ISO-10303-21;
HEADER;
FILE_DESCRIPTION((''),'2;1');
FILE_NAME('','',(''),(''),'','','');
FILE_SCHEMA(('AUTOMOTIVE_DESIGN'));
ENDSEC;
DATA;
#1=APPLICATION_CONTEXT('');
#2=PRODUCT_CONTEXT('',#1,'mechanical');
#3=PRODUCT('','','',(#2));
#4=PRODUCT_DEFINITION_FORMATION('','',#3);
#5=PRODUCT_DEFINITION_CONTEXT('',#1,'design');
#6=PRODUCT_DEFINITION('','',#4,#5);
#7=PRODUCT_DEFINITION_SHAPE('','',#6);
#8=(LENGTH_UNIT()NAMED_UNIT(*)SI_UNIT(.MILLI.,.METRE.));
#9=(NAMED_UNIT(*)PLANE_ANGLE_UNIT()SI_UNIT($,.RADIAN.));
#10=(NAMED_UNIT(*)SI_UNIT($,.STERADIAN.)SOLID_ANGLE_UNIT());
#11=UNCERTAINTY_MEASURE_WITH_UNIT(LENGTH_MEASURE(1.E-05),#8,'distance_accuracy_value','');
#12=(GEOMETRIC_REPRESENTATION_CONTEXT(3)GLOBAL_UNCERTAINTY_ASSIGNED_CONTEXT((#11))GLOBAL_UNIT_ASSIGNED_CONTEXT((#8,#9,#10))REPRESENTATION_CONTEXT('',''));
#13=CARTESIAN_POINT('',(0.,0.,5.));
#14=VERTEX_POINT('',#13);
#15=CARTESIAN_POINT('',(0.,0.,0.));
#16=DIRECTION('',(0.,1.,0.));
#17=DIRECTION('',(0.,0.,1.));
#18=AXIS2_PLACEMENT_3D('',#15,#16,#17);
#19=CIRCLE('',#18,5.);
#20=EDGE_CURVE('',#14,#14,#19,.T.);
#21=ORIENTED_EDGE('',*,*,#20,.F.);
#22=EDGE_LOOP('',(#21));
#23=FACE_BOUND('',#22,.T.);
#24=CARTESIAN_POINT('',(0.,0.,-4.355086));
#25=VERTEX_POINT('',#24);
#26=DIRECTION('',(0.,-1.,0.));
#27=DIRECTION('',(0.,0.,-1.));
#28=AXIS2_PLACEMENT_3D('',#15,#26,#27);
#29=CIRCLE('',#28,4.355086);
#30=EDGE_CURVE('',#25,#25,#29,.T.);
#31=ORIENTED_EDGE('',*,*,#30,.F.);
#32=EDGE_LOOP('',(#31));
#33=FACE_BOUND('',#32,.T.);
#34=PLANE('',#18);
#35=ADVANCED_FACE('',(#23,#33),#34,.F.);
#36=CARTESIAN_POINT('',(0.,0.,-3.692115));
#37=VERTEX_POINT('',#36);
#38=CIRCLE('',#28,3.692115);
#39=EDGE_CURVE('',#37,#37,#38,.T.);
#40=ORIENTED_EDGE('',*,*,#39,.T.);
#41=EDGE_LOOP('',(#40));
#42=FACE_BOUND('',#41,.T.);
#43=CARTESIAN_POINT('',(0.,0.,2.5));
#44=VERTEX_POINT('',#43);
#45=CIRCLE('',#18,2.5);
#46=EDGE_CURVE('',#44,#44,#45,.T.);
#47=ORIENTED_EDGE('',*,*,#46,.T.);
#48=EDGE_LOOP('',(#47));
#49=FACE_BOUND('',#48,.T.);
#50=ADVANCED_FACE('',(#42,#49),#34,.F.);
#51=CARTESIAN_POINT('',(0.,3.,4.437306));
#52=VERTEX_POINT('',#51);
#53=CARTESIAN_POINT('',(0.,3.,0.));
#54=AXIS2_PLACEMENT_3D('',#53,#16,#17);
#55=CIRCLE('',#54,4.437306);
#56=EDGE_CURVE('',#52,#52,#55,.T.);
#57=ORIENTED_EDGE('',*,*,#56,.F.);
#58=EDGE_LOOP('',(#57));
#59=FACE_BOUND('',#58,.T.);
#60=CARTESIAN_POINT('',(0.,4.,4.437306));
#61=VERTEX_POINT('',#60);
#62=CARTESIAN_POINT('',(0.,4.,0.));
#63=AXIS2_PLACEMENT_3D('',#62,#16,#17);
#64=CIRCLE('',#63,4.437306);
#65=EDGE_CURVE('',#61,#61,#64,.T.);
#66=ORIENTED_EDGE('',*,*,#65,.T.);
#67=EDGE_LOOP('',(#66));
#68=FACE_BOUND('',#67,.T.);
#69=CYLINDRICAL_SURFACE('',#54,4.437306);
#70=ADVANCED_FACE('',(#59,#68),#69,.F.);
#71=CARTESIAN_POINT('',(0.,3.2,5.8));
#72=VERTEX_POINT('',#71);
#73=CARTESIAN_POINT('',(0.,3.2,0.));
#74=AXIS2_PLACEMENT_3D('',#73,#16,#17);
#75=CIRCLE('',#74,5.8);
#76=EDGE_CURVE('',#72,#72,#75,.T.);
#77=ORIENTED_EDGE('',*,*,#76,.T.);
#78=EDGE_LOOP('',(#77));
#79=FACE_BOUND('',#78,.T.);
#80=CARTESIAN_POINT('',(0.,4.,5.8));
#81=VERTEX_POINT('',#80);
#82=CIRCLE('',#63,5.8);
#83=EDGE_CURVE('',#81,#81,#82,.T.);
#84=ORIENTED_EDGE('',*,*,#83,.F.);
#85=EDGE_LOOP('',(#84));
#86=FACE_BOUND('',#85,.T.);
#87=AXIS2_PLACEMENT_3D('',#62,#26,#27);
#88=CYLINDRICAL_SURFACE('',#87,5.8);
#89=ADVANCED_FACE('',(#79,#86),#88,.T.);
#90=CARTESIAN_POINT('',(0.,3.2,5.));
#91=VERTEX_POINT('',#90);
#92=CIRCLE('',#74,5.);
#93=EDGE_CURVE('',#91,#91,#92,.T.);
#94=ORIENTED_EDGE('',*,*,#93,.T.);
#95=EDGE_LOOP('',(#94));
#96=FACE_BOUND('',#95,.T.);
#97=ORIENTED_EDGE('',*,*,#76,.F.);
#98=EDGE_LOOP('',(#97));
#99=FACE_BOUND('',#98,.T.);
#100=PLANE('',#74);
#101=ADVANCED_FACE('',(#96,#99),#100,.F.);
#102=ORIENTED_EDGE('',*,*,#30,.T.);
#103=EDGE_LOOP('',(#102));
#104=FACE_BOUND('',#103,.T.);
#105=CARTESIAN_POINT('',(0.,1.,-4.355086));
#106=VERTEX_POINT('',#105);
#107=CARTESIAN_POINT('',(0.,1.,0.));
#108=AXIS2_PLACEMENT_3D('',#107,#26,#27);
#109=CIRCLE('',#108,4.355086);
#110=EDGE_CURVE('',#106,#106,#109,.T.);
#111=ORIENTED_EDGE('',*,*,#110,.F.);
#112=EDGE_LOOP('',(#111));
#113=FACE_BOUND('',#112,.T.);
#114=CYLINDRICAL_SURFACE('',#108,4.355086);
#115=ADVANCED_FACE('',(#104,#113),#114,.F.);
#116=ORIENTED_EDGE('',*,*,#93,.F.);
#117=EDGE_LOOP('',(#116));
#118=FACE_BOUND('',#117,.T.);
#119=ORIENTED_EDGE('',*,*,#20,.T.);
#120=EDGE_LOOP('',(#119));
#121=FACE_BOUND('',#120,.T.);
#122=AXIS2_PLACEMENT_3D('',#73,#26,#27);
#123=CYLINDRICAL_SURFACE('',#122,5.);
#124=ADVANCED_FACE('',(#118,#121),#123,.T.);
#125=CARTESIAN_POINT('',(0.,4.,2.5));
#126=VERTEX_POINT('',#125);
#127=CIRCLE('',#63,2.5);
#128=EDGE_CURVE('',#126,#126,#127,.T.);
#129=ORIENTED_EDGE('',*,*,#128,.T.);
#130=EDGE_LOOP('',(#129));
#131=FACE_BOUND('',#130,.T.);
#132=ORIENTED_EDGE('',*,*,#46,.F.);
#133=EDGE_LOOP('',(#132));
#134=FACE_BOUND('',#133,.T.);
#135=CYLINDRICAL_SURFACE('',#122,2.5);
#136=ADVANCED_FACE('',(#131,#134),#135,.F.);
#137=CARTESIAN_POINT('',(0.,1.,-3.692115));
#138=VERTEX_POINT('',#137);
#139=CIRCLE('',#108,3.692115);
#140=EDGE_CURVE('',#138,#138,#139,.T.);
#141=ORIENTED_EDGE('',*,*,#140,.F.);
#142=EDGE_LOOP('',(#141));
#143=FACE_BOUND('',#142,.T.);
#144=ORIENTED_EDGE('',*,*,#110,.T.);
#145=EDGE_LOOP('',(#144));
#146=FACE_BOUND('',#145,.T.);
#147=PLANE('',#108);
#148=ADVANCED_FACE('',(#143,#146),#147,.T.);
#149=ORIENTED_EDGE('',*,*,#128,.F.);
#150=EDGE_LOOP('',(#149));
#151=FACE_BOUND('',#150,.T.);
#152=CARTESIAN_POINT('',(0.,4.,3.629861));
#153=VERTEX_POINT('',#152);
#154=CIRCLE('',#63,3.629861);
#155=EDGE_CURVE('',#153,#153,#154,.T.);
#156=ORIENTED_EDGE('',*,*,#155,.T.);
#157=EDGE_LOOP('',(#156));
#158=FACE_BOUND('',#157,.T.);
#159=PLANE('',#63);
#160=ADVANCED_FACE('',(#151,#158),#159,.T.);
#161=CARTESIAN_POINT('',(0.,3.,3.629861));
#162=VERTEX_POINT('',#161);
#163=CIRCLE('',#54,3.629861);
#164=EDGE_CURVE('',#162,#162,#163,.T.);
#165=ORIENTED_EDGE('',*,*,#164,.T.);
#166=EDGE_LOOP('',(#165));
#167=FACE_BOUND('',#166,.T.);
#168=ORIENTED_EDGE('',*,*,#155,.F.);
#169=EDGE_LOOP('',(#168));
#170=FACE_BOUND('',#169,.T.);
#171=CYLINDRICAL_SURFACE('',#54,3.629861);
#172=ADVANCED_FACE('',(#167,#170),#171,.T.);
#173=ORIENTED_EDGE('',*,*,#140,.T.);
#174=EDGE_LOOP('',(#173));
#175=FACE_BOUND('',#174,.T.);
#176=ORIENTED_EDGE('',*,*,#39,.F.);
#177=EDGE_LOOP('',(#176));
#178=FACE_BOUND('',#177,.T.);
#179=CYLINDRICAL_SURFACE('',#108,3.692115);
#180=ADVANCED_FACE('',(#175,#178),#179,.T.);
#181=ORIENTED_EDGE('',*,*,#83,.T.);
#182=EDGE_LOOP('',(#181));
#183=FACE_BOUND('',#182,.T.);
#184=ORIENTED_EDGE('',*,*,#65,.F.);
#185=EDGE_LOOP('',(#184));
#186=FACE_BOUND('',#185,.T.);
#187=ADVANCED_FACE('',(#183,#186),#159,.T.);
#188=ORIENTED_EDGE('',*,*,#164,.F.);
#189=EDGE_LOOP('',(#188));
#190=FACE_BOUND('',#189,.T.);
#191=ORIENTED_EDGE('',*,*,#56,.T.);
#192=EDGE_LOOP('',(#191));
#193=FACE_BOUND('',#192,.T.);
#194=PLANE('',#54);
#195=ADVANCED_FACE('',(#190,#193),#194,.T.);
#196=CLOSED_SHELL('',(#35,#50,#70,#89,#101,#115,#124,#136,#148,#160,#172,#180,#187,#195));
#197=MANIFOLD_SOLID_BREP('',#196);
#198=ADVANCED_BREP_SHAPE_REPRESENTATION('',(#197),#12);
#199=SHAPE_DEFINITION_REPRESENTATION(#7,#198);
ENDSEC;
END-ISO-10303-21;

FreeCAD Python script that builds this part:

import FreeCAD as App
import Part
import Sketcher
from FreeCAD import Vector
Q = App.Units.Quantity

doc = App.newDocument("Part")
params = doc.addObject("Spreadsheet::Sheet", "Params")
for row, (alias, value) in enumerate([
    ("sketch1_diameter", "10 mm"),
    ("sketch1_diameter2", "5 mm"),
    ("pad1_length", "3.2 mm"),
    ("sketch2_diameter", "5 mm"),
    ("sketch2_diameter2", "11.6 mm"),
    ("pad2_length", "0.8 mm"),
    ("pocket1_length", "1 mm"),
    ("pocket2_length", "1 mm"),
], start=1):
    params.set(f"A{row}", alias)
    params.set(f"B{row}", "=" + value)
    params.setAlias(f"B{row}", alias)

body = doc.addObject("PartDesign::Body", "Body")

# Sketch on XZ plane
sketch1 = body.newObject("Sketcher::SketchObject", "Sketch")
sketch1.AttachmentSupport = (doc.getObject("XZ_Plane"), [""])
sketch1.MapMode = "FlatFace"
sketch1.addGeometry(Part.Circle(Vector(0, 0, 0), Vector(0, 0, 1), 5), False)
sketch1.addGeometry(Part.Circle(Vector(0, 0, 0), Vector(0, 0, 1), 2.5), False)
sketch1.addConstraint(Sketcher.Constraint("Coincident", 0, 3, -1, 1))
sketch1.addConstraint(Sketcher.Constraint("Coincident", 1, 3, -1, 1))
sketch1.addConstraint(Sketcher.Constraint("Diameter", 0, Q("10 mm")))
sketch1.addConstraint(Sketcher.Constraint("Diameter", 1, Q("5 mm")))
sketch1.setExpression("Constraints[2]", "Params.sketch1_diameter")
sketch1.setExpression("Constraints[3]", "Params.sketch1_diameter2")
pad1 = body.newObject("PartDesign::Pad", "Pad")
pad1.Profile = sketch1
pad1.setExpression("Length", "Params.pad1_length")
pad1.Reversed = True

# Sketch on XZ plane
sketch2 = body.newObject("Sketcher::SketchObject", "Sketch001")
sketch2.AttachmentSupport = (doc.getObject("XZ_Plane"), [""])
sketch2.MapMode = "FlatFace"
sketch2.AttachmentOffset = App.Placement(Vector(0, 0, -3.2), App.Rotation())
sketch2.addGeometry(Part.Circle(Vector(0, 0, 0), Vector(0, 0, 1), 5.8), False)
sketch2.addGeometry(Part.Circle(Vector(0, 0, 0), Vector(0, 0, 1), 2.5), False)
sketch2.addConstraint(Sketcher.Constraint("Coincident", 0, 3, -1, 1))
sketch2.addConstraint(Sketcher.Constraint("Coincident", 1, 3, -1, 1))
sketch2.addConstraint(Sketcher.Constraint("Diameter", 1, Q("5 mm")))
sketch2.addConstraint(Sketcher.Constraint("Diameter", 0, Q("11.6 mm")))
sketch2.setExpression("Constraints[2]", "Params.sketch2_diameter")
sketch2.setExpression("Constraints[3]", "Params.sketch2_diameter2")
pad2 = body.newObject("PartDesign::Pad", "Pad001")
pad2.Profile = sketch2
pad2.setExpression("Length", "Params.pad2_length")
pad2.Reversed = True

# Sketch on XZ plane
sketch3 = body.newObject("Sketcher::SketchObject", "Sketch002")
sketch3.AttachmentSupport = (doc.getObject("XZ_Plane"), [""])
sketch3.MapMode = "FlatFace"
sketch3.addGeometry(Part.Circle(Vector(0, 0, 0), Vector(0, 0, 1), 4.355086), False)
sketch3.addGeometry(Part.Circle(Vector(0, 0, 0), Vector(0, 0, 1), 3.692115), False)
sketch3.addConstraint(Sketcher.Constraint("Coincident", 0, 3, -1, 1))
sketch3.addConstraint(Sketcher.Constraint("Coincident", 1, 3, -1, 1))
sketch3.addConstraint(Sketcher.Constraint("Diameter", 0, Q("8.710172 mm")))
sketch3.addConstraint(Sketcher.Constraint("Diameter", 1, Q("7.384229 mm")))
pocket1 = body.newObject("PartDesign::Pocket", "Pocket")
pocket1.Profile = sketch3
pocket1.setExpression("Length", "Params.pocket1_length")

# Sketch on XZ plane
sketch4 = body.newObject("Sketcher::SketchObject", "Sketch003")
sketch4.AttachmentSupport = (doc.getObject("XZ_Plane"), [""])
sketch4.MapMode = "FlatFace"
sketch4.AttachmentOffset = App.Placement(Vector(0, 0, -4), App.Rotation())
sketch4.addGeometry(Part.Circle(Vector(0, 0, 0), Vector(0, 0, 1), 4.437306), False)
sketch4.addGeometry(Part.Circle(Vector(0, 0, 0), Vector(0, 0, 1), 3.629861), False)
sketch4.addConstraint(Sketcher.Constraint("Coincident", 0, 3, -1, 1))
sketch4.addConstraint(Sketcher.Constraint("Coincident", 1, 3, -1, 1))
sketch4.addConstraint(Sketcher.Constraint("Diameter", 1, Q("7.259722 mm")))
sketch4.addConstraint(Sketcher.Constraint("Diameter", 0, Q("8.874612 mm")))
pocket2 = body.newObject("PartDesign::Pocket", "Pocket001")
pocket2.Profile = sketch4
pocket2.setExpression("Length", "Params.pocket2_length")
pocket2.Reversed = True

doc.recompute()
